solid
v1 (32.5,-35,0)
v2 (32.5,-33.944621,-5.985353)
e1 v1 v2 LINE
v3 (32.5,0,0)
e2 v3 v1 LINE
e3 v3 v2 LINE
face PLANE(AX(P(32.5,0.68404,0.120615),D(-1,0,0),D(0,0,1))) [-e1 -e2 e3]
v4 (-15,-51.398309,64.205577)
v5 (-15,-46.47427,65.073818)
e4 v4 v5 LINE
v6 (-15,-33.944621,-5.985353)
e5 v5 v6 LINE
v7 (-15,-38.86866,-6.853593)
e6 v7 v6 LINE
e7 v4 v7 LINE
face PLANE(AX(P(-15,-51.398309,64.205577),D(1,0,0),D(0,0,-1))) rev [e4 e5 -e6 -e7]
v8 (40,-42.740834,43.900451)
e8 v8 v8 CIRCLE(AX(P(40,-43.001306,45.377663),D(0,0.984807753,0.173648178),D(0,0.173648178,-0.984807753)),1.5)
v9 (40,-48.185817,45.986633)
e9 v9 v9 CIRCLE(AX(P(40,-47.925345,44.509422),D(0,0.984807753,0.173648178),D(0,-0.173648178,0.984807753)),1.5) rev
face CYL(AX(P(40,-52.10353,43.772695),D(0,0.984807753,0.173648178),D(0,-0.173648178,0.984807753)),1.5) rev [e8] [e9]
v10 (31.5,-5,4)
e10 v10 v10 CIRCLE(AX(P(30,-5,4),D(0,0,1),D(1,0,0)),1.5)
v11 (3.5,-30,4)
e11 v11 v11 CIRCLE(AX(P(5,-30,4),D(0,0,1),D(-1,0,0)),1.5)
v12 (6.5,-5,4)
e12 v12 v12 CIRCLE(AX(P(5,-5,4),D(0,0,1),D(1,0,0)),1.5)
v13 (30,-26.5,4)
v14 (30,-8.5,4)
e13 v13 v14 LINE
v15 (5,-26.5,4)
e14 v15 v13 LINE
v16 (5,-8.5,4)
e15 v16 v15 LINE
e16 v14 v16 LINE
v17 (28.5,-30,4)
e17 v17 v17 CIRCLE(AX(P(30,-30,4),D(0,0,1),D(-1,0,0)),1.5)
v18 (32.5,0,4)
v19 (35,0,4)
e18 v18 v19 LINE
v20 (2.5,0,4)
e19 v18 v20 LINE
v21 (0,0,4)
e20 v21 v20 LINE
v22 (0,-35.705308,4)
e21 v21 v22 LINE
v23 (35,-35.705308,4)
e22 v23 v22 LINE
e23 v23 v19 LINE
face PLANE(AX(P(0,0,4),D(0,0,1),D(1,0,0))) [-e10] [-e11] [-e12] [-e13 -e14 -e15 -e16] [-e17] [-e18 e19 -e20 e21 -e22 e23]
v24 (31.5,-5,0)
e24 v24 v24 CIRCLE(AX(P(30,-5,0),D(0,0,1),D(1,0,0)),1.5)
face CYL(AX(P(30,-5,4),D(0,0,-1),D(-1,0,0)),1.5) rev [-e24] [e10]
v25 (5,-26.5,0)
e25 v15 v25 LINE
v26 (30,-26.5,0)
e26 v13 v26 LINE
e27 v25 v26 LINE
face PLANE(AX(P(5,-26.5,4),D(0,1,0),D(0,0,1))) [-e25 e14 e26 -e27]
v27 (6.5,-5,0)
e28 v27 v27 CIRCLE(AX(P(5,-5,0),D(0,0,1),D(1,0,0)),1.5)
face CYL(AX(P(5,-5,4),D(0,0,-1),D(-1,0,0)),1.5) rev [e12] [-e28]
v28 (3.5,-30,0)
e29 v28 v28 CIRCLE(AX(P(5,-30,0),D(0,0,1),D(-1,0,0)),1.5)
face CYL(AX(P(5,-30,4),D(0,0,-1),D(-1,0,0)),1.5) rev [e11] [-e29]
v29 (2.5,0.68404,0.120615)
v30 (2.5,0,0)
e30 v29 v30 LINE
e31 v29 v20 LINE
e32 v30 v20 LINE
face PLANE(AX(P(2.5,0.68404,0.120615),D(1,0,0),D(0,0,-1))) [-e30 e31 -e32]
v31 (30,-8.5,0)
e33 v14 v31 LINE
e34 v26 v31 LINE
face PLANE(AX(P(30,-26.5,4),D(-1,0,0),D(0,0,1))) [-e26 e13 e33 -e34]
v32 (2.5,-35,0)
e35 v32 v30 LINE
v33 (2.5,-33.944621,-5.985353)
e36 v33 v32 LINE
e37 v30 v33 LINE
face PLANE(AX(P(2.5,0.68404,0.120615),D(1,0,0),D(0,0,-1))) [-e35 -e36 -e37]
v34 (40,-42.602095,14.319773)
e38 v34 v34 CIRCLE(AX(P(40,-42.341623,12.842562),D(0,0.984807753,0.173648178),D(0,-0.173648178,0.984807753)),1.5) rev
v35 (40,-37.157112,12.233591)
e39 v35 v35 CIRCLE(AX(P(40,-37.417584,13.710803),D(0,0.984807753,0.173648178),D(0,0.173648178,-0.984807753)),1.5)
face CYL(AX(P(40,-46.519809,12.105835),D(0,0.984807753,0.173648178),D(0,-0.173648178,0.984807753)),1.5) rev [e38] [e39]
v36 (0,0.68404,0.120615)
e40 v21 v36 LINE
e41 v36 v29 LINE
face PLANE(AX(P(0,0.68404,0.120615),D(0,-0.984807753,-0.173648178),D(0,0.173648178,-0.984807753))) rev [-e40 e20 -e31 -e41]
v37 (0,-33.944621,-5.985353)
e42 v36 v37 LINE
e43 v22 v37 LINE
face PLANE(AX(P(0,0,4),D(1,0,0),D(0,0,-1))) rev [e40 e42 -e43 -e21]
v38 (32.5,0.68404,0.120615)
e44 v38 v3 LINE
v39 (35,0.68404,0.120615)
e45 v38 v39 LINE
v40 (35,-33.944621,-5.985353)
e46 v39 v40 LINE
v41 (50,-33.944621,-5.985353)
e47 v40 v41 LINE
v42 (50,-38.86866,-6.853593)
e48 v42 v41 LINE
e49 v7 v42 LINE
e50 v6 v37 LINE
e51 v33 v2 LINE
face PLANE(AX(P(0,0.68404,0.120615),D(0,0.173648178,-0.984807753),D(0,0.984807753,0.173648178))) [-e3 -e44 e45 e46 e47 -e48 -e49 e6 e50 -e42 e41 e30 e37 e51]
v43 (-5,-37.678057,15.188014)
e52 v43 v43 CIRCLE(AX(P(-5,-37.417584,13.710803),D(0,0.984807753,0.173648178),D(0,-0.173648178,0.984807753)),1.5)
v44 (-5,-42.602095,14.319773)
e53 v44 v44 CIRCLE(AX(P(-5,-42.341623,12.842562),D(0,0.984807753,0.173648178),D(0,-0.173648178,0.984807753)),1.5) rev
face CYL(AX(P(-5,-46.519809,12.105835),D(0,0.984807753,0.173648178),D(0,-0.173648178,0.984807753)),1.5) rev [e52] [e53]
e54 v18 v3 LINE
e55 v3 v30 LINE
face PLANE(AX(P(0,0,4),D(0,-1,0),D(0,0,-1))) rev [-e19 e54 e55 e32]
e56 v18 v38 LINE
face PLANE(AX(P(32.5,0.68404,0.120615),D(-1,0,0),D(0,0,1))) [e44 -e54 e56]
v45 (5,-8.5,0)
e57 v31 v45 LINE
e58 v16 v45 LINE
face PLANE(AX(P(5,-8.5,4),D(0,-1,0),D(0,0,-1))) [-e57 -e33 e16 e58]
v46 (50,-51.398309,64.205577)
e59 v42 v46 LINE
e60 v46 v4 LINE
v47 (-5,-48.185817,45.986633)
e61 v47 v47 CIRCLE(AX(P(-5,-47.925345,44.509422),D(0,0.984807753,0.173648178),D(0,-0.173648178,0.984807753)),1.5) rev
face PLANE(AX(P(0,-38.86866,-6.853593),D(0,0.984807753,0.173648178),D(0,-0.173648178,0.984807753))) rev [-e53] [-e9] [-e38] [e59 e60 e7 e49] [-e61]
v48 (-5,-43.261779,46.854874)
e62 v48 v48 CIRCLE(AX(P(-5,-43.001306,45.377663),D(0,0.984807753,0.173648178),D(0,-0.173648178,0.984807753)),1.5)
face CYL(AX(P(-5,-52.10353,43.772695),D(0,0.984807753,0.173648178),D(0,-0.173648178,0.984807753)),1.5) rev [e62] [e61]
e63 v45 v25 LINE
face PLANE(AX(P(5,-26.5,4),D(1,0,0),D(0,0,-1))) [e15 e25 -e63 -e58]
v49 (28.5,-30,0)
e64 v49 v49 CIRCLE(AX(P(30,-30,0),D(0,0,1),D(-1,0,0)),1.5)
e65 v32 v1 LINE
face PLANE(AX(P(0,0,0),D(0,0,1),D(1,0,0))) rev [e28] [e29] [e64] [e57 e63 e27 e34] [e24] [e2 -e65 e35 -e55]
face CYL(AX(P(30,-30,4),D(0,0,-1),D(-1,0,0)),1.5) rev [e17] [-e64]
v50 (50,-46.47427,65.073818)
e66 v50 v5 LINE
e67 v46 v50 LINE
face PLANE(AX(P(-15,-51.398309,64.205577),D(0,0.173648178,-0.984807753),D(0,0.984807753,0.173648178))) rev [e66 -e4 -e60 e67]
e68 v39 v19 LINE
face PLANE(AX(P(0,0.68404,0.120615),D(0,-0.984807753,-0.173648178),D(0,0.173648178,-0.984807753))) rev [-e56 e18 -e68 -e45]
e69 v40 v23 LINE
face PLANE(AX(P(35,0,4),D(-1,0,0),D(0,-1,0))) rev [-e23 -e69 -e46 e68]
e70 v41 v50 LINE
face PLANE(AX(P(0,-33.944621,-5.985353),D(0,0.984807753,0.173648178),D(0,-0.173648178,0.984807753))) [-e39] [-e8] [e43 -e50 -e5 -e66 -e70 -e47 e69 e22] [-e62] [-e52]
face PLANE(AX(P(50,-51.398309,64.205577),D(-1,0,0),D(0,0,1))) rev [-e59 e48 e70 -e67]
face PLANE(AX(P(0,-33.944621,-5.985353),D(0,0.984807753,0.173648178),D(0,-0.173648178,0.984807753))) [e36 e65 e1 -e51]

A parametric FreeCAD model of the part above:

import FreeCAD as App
import Part
import Sketcher

V = App.Vector
Q = App.Units.Quantity

doc = App.newDocument("Part")
body = doc.addObject("PartDesign::Body", "Body")

# Sketch on XY plane
sketch1 = body.newObject("Sketcher::SketchObject", "Sketch")
sketch1.AttachmentSupport = (doc.getObject("XY_Plane"), [""])
sketch1.MapMode = "FlatFace"
sketch1.addGeometry([
    Part.LineSegment(V(0, 0, 0), V(0, -35, 0)),  # 0
    Part.LineSegment(V(0, -35, 0), V(35, -35, 0)),  # 1
    Part.LineSegment(V(35, -35, 0), V(35, 0, 0)),  # 2
    Part.LineSegment(V(35, 0, 0), V(0, 0, 0)),  # 3
    Part.Circle(V(5, -30, 0), V(0, 0, 1), 1.5),  # 4
    Part.Circle(V(30, -30, 0), V(0, 0, 1), 1.5),  # 5
    Part.Circle(V(5, -5, 0), V(0, 0, 1), 1.5),  # 6
    Part.LineSegment(V(30, -26.5, 0), V(5, -26.5, 0)),  # 7
    Part.LineSegment(V(5, -26.5, 0), V(5, -8.5, 0)),  # 8
    Part.LineSegment(V(5, -8.5, 0), V(30, -8.5, 0)),  # 9
    Part.LineSegment(V(30, -8.5, 0), V(30, -26.5, 0)),  # 10
    Part.Circle(V(30, -5, 0), V(0, 0, 1), 1.5),  # 11
], False)
sketch1.addConstraint([
    Sketcher.Constraint("Coincident", 0, 2, 1, 1),
    Sketcher.Constraint("Coincident", 1, 2, 2, 1),
    Sketcher.Constraint("Coincident", 2, 2, 3, 1),
    Sketcher.Constraint("Coincident", 3, 2, 0, 1),
    Sketcher.Constraint("Coincident", 7, 2, 8, 1),
    Sketcher.Constraint("Coincident", 8, 2, 9, 1),
    Sketcher.Constraint("Coincident", 9, 2, 10, 1),
    Sketcher.Constraint("Coincident", 10, 2, 7, 1),
    Sketcher.Constraint("Vertical", 0),
    Sketcher.Constraint("Horizontal", 1),
    Sketcher.Constraint("Vertical", 2),
    Sketcher.Constraint("Horizontal", 3),
    Sketcher.Constraint("Horizontal", 7),
    Sketcher.Constraint("Vertical", 8),
    Sketcher.Constraint("Horizontal", 9),
    Sketcher.Constraint("Vertical", 10),
    Sketcher.Constraint("Coincident", 3, 2, -1, 1),
    Sketcher.Constraint("Equal", 4, 5),
    Sketcher.Constraint("Equal", 5, 6),
    Sketcher.Constraint("Equal", 6, 11),
    Sketcher.Constraint("Horizontal", 4, 3, 5, 3),
    Sketcher.Constraint("Horizontal", 6, 3, 11, 3),
    Sketcher.Constraint("Vertical", 4, 3, 6, 3),
    Sketcher.Constraint("Vertical", 5, 3, 11, 3),
    Sketcher.Constraint("Vertical", 6, 3, 7, 2),
    Sketcher.Constraint("Vertical", 11, 3, 9, 2),
    Sketcher.Constraint("Equal", 3, 0),
    Sketcher.Constraint("Diameter", 4, Q("3 mm")),
    Sketcher.Constraint("DistanceX", 1, 1, 1, 2, Q("35 mm")),
    Sketcher.Constraint("DistanceX", 7, 2, 7, 1, Q("25 mm")),
    Sketcher.Constraint("DistanceY", 8, 1, 8, 2, Q("18 mm")),
    Sketcher.Constraint("DistanceX", -1, 1, 4, 3, Q("5 mm")),
    Sketcher.Constraint("DistanceY", 4, 3, -1, 1, Q("30 mm")),
    Sketcher.Constraint("DistanceY", 6, 3, -1, 1, Q("5 mm")),
    Sketcher.Constraint("DistanceY", 7, 2, -1, 1, Q("26.5 mm")),
])
pad1 = body.newObject("PartDesign::Pad", "Pad")
pad1.Profile = sketch1
pad1.Length = 4

# Sketch on an angled plane
sketch2 = body.newObject("Sketcher::SketchObject", "Sketch001")
sketch2.Placement = App.Placement(V(0, 0.68404, 0.120615), App.Rotation(V(-1, 0, 0), V(0, 0.173648178, -0.984807753), V(0, -0.984807753, -0.173648178), "ZXY"))
sketch2.addGeometry([
    Part.LineSegment(V(-35, 0, 0), V(-35, -6.1, 0)),  # 0
    Part.LineSegment(V(-35, -6.1, 0), V(-32.5, -6.1, 0)),  # 1
    Part.LineSegment(V(-32.5, -6.1, 0), V(-32.5, 0, 0)),  # 2
    Part.LineSegment(V(-32.5, 0, 0), V(-35, 0, 0)),  # 3
    Part.LineSegment(V(-2.5, 0, 0), V(-2.5, -6.1, 0)),  # 4
    Part.LineSegment(V(-2.5, -6.1, 0), V(0, -6.1, 0)),  # 5
    Part.LineSegment(V(0, -6.1, 0), V(0, 0, 0)),  # 6
    Part.LineSegment(V(0, 0, 0), V(-2.5, 0, 0)),  # 7
], False)
sketch2.addConstraint([
    Sketcher.Constraint("Coincident", 0, 2, 1, 1),
    Sketcher.Constraint("Coincident", 1, 2, 2, 1),
    Sketcher.Constraint("Coincident", 2, 2, 3, 1),
    Sketcher.Constraint("Coincident", 3, 2, 0, 1),
    Sketcher.Constraint("Coincident", 4, 2, 5, 1),
    Sketcher.Constraint("Coincident", 5, 2, 6, 1),
    Sketcher.Constraint("Coincident", 6, 2, 7, 1),
    Sketcher.Constraint("Coincident", 7, 2, 4, 1),
    Sketcher.Constraint("Vertical", 0),
    Sketcher.Constraint("Horizontal", 1),
    Sketcher.Constraint("Vertical", 2),
    Sketcher.Constraint("Horizontal", 3),
    Sketcher.Constraint("Vertical", 4),
    Sketcher.Constraint("Horizontal", 5),
    Sketcher.Constraint("Vertical", 6),
    Sketcher.Constraint("Horizontal", 7),
    Sketcher.Constraint("Coincident", 6, 2, -1, 1),
    Sketcher.Constraint("PointOnObject", 2, 2, -1),
    Sketcher.Constraint("Horizontal", 1, 2, 4, 2),
    Sketcher.Constraint("Equal", 3, 5),
    Sketcher.Constraint("DistanceX", 1, 1, 1, 2, Q("2.5 mm")),
    Sketcher.Constraint("DistanceX", 0, 2, -1, 1, Q("35 mm")),
    Sketcher.Constraint("DistanceY", 0, 2, 0, 1, Q("6.077686 mm")),
])
pad2 = body.newObject("PartDesign::Pad", "Pad001")
pad2.Profile = sketch2
pad2.Length = 35.162864

# Sketch on YZ plane
sketch3 = body.newObject("Sketcher::SketchObject", "Sketch002")
sketch3.AttachmentSupport = (doc.getObject("YZ_Plane"), [""])
sketch3.MapMode = "FlatFace"
sketch3.AttachmentOffset = App.Placement(V(0, 0, 35), App.Rotation())
sketch3.addGeometry([
    Part.LineSegment(V(0, 4, 0), V(-0.4, 6.1, 0)),
    Part.LineSegment(V(-0.4, 6.1, 0), V(-12.3, 4, 0)),
    Part.LineSegment(V(-12.3, 4, 0), V(0, 4, 0)),
], False)
sketch3.addConstraint([
    Sketcher.Constraint("Coincident", 0, 2, 1, 1),
    Sketcher.Constraint("Coincident", 1, 2, 2, 1),
    Sketcher.Constraint("Coincident", 2, 2, 0, 1),
    Sketcher.Constraint("Horizontal", 2),
    Sketcher.Constraint("PointOnObject", 2, 2, -2),
    Sketcher.Constraint("Perpendicular", 0, 1),
    Sketcher.Constraint("Angle", 0, Q("100 deg")),
    Sketcher.Constraint("DistanceY", -1, 1, 1, 2, Q("4 mm")),
    Sketcher.Constraint("DistanceX", 2, 1, 2, 2, Q("12.314873 mm")),
])
pocket1 = body.newObject("PartDesign::Pocket", "Pocket")
pocket1.Profile = sketch3
pocket1.Length = 35
body2 = doc.addObject("PartDesign::Body", "Body001")

# Sketch on an angled plane
sketch4 = body2.newObject("Sketcher::SketchObject", "Sketch003")
sketch4.Placement = App.Placement(V(0, -33.944621, -5.985353), App.Rotation(V(-1, 0, 0), V(0, 0.173648178, -0.984807753), V(0, -0.984807753, -0.173648178), "ZXY"))
sketch4.addGeometry([
    Part.LineSegment(V(-50, 0, 0), V(-50, -72, 0)),
    Part.LineSegment(V(-50, -72, 0), V(15, -72, 0)),
    Part.LineSegment(V(15, -72, 0), V(15, 0, 0)),
    Part.LineSegment(V(15, 0, 0), V(-50, 0, 0)),
], False)
sketch4.addConstraint([
    Sketcher.Constraint("Coincident", 0, 2, 1, 1),
    Sketcher.Constraint("Coincident", 1, 2, 2, 1),
    Sketcher.Constraint("Coincident", 2, 2, 3, 1),
    Sketcher.Constraint("Coincident", 3, 2, 0, 1),
    Sketcher.Constraint("Vertical", 0),
    Sketcher.Constraint("Horizontal", 1),
    Sketcher.Constraint("Vertical", 2),
    Sketcher.Constraint("Horizontal", 3),
    Sketcher.Constraint("PointOnObject", 2, 2, -1),
    Sketcher.Constraint("DistanceX", 1, 1, 1, 2, Q("65 mm")),
    Sketcher.Constraint("DistanceX", 0, 2, -1, 1, Q("50 mm")),
    Sketcher.Constraint("DistanceY", 0, 2, 0, 1, Q("72.155372 mm")),
])
pad3 = body2.newObject("PartDesign::Pad", "Pad002")
pad3.Profile = sketch4
pad3.Length = 5
doc.recompute()

boolean = body.newObject("PartDesign::Boolean", "Boolean")
boolean.Type = "Fuse"
boolean.addObjects([body2])

# Sketch on YZ plane
sketch5 = body.newObject("Sketcher::SketchObject", "Sketch004")
sketch5.AttachmentSupport = (doc.getObject("YZ_Plane"), [""])
sketch5.MapMode = "FlatFace"
sketch5.addGeometry([
    Part.LineSegment(V(-35.7, 4, 0), V(-35, 4, 0)),
    Part.LineSegment(V(-35, 4, 0), V(-35, 0, 0)),
    Part.LineSegment(V(-35, 0, 0), V(-35.7, 4, 0)),
], False)
sketch5.addConstraint([
    Sketcher.Constraint("Coincident", 0, 2, 1, 1),
    Sketcher.Constraint("Coincident", 1, 2, 2, 1),
    Sketcher.Constraint("Coincident", 2, 2, 0, 1),
    Sketcher.Constraint("Horizontal", 0),
    Sketcher.Constraint("Vertical", 1),
    Sketcher.Constraint("PointOnObject", 1, 2, -1),
    Sketcher.Constraint("DistanceY", 1, 2, 1, 1, Q("4 mm")),
    Sketcher.Constraint("Angle", 2, Q("100 deg")),
    Sketcher.Constraint("DistanceX", 0, 2, -1, 1, Q("35 mm")),
])
pad4 = body.newObject("PartDesign::Pad", "Pad003")
pad4.Profile = sketch5
pad4.Length = 35

# Sketch on an angled plane
sketch6 = body.newObject("Sketcher::SketchObject", "Sketch005")
sketch6.Placement = App.Placement(V(0, -33.944621, -5.985353), App.Rotation(V(1, 0, 0), V(0, 0.173648178, -0.984807753), V(0, 0.984807753, 0.173648178), "ZXY"))
sketch6.addGeometry([
    Part.Circle(V(-5, -20, 0), V(0, 0, 1), 1.5),
    Part.Circle(V(-5, -52.2, 0), V(0, 0, 1), 1.5),
    Part.Circle(V(40, -52.2, 0), V(0, 0, 1), 1.5),
    Part.Circle(V(40, -20, 0), V(0, 0, 1), 1.5),
], False)
sketch6.addConstraint([
    Sketcher.Constraint("Equal", 0, 1),
    Sketcher.Constraint("Equal", 1, 2),
    Sketcher.Constraint("Equal", 2, 3),
    Sketcher.Constraint("Horizontal", 1, 3, 2, 3),
    Sketcher.Constraint("Horizontal", 0, 3, 3, 3),
    Sketcher.Constraint("Vertical", 0, 3, 1, 3),
    Sketcher.Constraint("Vertical", 2, 3, 3, 3),
    Sketcher.Constraint("Diameter", 0, Q("3 mm")),
    Sketcher.Constraint("DistanceX", 0, 3, -1, 1, Q("5 mm")),
    Sketcher.Constraint("DistanceY", 0, 3, -1, 1, Q("20 mm")),
    Sketcher.Constraint("DistanceX", -1, 1, 2, 3, Q("40 mm")),
    Sketcher.Constraint("DistanceY", 1, 3, -1, 1, Q("52.155372 mm")),
])
pocket2 = body.newObject("PartDesign::Pocket", "Pocket001")
pocket2.Profile = sketch6
pocket2.Length = 5

doc.recompute()
